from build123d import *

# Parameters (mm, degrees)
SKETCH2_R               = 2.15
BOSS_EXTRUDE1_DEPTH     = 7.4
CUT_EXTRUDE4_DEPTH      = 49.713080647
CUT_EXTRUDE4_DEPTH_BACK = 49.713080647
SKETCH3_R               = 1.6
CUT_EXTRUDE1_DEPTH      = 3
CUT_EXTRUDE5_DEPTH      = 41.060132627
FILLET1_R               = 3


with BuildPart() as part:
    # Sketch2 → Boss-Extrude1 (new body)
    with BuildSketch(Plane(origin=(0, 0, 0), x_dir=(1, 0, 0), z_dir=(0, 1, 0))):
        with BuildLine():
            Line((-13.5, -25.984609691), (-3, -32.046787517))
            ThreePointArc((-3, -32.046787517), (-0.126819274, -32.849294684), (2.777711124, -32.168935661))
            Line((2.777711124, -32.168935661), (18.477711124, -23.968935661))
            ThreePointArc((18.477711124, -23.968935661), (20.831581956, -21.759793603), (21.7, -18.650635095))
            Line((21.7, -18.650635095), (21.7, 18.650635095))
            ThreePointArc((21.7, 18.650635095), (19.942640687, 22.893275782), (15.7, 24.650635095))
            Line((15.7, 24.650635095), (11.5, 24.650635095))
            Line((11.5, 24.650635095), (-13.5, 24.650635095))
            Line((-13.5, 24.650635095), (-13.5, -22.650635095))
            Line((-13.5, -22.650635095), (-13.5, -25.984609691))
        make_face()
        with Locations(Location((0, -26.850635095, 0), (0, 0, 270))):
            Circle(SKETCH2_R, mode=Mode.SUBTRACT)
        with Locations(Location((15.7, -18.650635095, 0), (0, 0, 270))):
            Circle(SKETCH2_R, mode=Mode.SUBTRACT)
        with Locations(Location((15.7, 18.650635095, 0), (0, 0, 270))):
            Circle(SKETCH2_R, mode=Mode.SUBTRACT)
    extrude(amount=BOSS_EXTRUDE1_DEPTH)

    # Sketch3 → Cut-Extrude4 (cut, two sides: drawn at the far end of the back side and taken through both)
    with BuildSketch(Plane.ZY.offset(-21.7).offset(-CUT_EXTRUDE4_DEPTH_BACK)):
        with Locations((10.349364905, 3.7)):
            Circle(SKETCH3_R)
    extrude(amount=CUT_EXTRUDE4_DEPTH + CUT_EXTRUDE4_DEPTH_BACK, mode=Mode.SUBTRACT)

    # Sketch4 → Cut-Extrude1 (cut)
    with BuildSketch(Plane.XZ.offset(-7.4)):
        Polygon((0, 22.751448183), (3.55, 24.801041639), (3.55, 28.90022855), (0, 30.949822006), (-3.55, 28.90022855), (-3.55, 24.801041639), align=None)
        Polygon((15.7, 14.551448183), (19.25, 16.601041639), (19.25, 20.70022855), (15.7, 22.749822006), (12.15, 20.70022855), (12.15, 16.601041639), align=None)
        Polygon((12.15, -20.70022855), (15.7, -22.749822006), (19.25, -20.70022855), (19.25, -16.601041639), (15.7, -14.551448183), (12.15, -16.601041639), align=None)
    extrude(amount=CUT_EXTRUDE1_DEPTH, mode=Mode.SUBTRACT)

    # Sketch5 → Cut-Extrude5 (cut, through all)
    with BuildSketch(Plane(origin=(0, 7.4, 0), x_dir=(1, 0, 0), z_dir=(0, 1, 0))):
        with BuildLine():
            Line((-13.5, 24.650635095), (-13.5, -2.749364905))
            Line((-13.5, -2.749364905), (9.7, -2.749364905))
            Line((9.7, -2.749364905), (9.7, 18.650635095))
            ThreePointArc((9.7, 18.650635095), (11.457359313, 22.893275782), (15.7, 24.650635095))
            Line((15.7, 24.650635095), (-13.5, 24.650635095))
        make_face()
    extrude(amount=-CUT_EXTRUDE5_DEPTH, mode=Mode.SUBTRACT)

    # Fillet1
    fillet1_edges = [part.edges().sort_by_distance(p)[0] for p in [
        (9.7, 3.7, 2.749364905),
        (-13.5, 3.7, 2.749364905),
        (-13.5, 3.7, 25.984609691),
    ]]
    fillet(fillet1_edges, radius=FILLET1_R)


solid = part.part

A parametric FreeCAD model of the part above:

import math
import FreeCAD as App
import Part
import Sketcher
Q = App.Units.Quantity


def edges_at(feature, points):
    """Names of the edges that pass closest to the given points."""
    edges = feature.Shape.Edges
    near = lambda p: min(range(len(edges)), key=lambda i: edges[i].distToShape(Part.Vertex(*p))[0])
    return sorted({f"Edge{near(p) + 1}" for p in points})

doc = App.newDocument("Part")
params = doc.addObject("Spreadsheet::Sheet", "Params")
for row, (alias, value) in enumerate([
    ("sketch1_radius", "6 mm"),
    ("sketch1_diameter", "4.3 mm"),
    ("sketch1_width", "29.2 mm"),
    ("pad1_length", "7.4 mm"),
    ("sketch2_diameter", "3.2 mm"),
    ("pocket2_length", "3 mm"),
    ("sketch4_radius", "6 mm"),
    ("sketch4_width", "23.2 mm"),
    ("sketch4_height", "27.4 mm"),
    ("fillet_radius", "3 mm"),
], start=1):
    params.set(f"A{row}", alias)
    params.set(f"B{row}", "=" + value)
    params.setAlias(f"B{row}", alias)

body = doc.addObject("PartDesign::Body", "Body")

# Sketch on XZ plane
sketch1 = doc.addObject("Sketcher::SketchObject", "Sketch")
body.addObject(sketch1)
sketch1.AttachmentSupport = (doc.XZ_Plane, [""])
sketch1.MapMode = "FlatFace"
sketch1.addGeometry(Part.LineSegment(App.Vector(-13.5, 26, 0), App.Vector(-3, 32, 0)), False)
sketch1.addGeometry(Part.ArcOfCircle(Part.Circle(App.Vector(0, 26.9, 0), App.Vector(0, 0, 1), 6), math.radians(62), math.radians(120)), False)
sketch1.addGeometry(Part.LineSegment(App.Vector(2.8, 32.2, 0), App.Vector(18.5, 24, 0)), False)
sketch1.addGeometry(Part.ArcOfCircle(Part.Circle(App.Vector(15.7, 18.7, 0), App.Vector(0, 0, 1), 6), math.radians(0), math.radians(62)), False)
sketch1.addGeometry(Part.LineSegment(App.Vector(21.7, 18.7, 0), App.Vector(21.7, -18.7, 0)), False)
sketch1.addGeometry(Part.ArcOfCircle(Part.Circle(App.Vector(15.7, -18.7, 0), App.Vector(0, 0, 1), 6), math.radians(-90), math.radians(0)), False)
sketch1.addGeometry(Part.LineSegment(App.Vector(15.7, -24.7, 0), App.Vector(-13.5, -24.7, 0)), False)
sketch1.addGeometry(Part.LineSegment(App.Vector(-13.5, -24.7, 0), App.Vector(-13.5, 26, 0)), False)
sketch1.addGeometry(Part.Circle(App.Vector(0, 26.9, 0), App.Vector(0, 0, 1), 2.1), False)
sketch1.addGeometry(Part.Circle(App.Vector(15.7, 18.7, 0), App.Vector(0, 0, 1), 2.1), False)
sketch1.addGeometry(Part.Circle(App.Vector(15.7, -18.7, 0), App.Vector(0, 0, 1), 2.1), False)
sketch1.addConstraint(Sketcher.Constraint("Tangent", 0, 2, 1, 2))
sketch1.addConstraint(Sketcher.Constraint("Tangent", 1, 1, 2, 1))
sketch1.addConstraint(Sketcher.Constraint("Tangent", 2, 2, 3, 2))
sketch1.addConstraint(Sketcher.Constraint("Tangent", 3, 1, 4, 1))
sketch1.addConstraint(Sketcher.Constraint("Tangent", 4, 2, 5, 2))
sketch1.addConstraint(Sketcher.Constraint("Tangent", 5, 1, 6, 1))
sketch1.addConstraint(Sketcher.Constraint("Coincident", 6, 2, 7, 1))
sketch1.addConstraint(Sketcher.Constraint("Coincident", 7, 2, 0, 1))
sketch1.addConstraint(Sketcher.Constraint("Vertical", 4))
sketch1.addConstraint(Sketcher.Constraint("Horizontal", 6))
sketch1.addConstraint(Sketcher.Constraint("Vertical", 7))
sketch1.addConstraint(Sketcher.Constraint("Coincident", 8, 3, 1, 3))
sketch1.addConstraint(Sketcher.Constraint("Coincident", 9, 3, 3, 3))
sketch1.addConstraint(Sketcher.Constraint("Coincident", 10, 3, 5, 3))
sketch1.addConstraint(Sketcher.Constraint("Equal", 1, 3))
sketch1.addConstraint(Sketcher.Constraint("Equal", 3, 5))
sketch1.addConstraint(Sketcher.Constraint("Equal", 8, 9))
sketch1.addConstraint(Sketcher.Constraint("Equal", 9, 10))
sketch1.addConstraint(Sketcher.Constraint("PointOnObject", 1, 3, -2))
sketch1.addConstraint(Sketcher.Constraint("Radius", 1, Q("6 mm")))
sketch1.addConstraint(Sketcher.Constraint("Diameter", 8, Q("4.3 mm")))
sketch1.addConstraint(Sketcher.Constraint("Angle", 0, Q("30 deg")))
sketch1.addConstraint(Sketcher.Constraint("DistanceX", 6, 2, 6, 1, Q("29.2 mm")))
sketch1.addConstraint(Sketcher.Constraint("DistanceX", -1, 1, 3, 3, Q("15.7 mm")))
sketch1.addConstraint(Sketcher.Constraint("DistanceY", 3, 3, 1, 3, Q("8.2 mm")))
sketch1.addConstraint(Sketcher.Constraint("DistanceY", 4, 2, 4, 1, Q("37.30127 mm")))
sketch1.addConstraint(Sketcher.Constraint("DistanceY", -1, 1, 7, 2, Q("25.98461 mm")))
sketch1.setExpression("Constraints[19]", "Params.sketch1_radius")
sketch1.setExpression("Constraints[20]", "Params.sketch1_diameter")
sketch1.setExpression("Constraints[22]", "Params.sketch1_width")
pad1 = doc.addObject("PartDesign::Pad", "Pad")
body.addObject(pad1)
pad1.Profile = sketch1
pad1.setExpression("Length", "Params.pad1_length")
pad1.Reversed = True

# Sketch on YZ plane
sketch2 = doc.addObject("Sketcher::SketchObject", "Sketch001")
body.addObject(sketch2)
sketch2.AttachmentSupport = (doc.YZ_Plane, [""])
sketch2.MapMode = "FlatFace"
sketch2.AttachmentOffset = App.Placement(App.Vector(0, 0, 21.7), App.Rotation())
sketch2.addGeometry(Part.Circle(App.Vector(3.7, 10.3, 0), App.Vector(0, 0, 1), 1.6), False)
sketch2.addConstraint(Sketcher.Constraint("Diameter", 0, Q("3.2 mm")))
sketch2.addConstraint(Sketcher.Constraint("DistanceX", -1, 1, 0, 3, Q("3.7 mm")))
sketch2.addConstraint(Sketcher.Constraint("DistanceY", -1, 1, 0, 3, Q("10.349365 mm")))
sketch2.setExpression("Constraints[0]", "Params.sketch2_diameter")
pocket1 = doc.addObject("PartDesign::Pocket", "Pocket")
body.addObject(pocket1)
pocket1.Profile = sketch2
pocket1.Type = "ThroughAll"
pocket1.Midplane = True

# Sketch on XZ plane
sketch3 = doc.addObject("Sketcher::SketchObject", "Sketch002")
body.addObject(sketch3)
sketch3.AttachmentSupport = (doc.XZ_Plane, [""])
sketch3.MapMode = "FlatFace"
sketch3.AttachmentOffset = App.Placement(App.Vector(0, 0, -7.4), App.Rotation())
sketch3.addGeometry(Part.LineSegment(App.Vector(0, 22.8, 0), App.Vector(3.5, 24.8, 0)), False)
sketch3.addGeometry(Part.LineSegment(App.Vector(3.5, 24.8, 0), App.Vector(3.5, 28.9, 0)), False)
sketch3.addGeometry(Part.LineSegment(App.Vector(3.5, 28.9, 0), App.Vector(0, 30.9, 0)), False)
sketch3.addGeometry(Part.LineSegment(App.Vector(0, 30.9, 0), App.Vector(-3.5, 28.9, 0)), False)
sketch3.addGeometry(Part.LineSegment(App.Vector(-3.5, 28.9, 0), App.Vector(-3.5, 24.8, 0)), False)
sketch3.addGeometry(Part.LineSegment(App.Vector(-3.5, 24.8, 0), App.Vector(0, 22.8, 0)), False)
sketch3.addGeometry(Part.LineSegment(App.Vector(15.7, 14.6, 0), App.Vector(19.2, 16.6, 0)), False)
sketch3.addGeometry(Part.LineSegment(App.Vector(19.2, 16.6, 0), App.Vector(19.2, 20.7, 0)), False)
sketch3.addGeometry(Part.LineSegment(App.Vector(19.2, 20.7, 0), App.Vector(15.7, 22.7, 0)), False)
sketch3.addGeometry(Part.LineSegment(App.Vector(15.7, 22.7, 0), App.Vector(12.2, 20.7, 0)), False)
sketch3.addGeometry(Part.LineSegment(App.Vector(12.2, 20.7, 0), App.Vector(12.2, 16.6, 0)), False)
sketch3.addGeometry(Part.LineSegment(App.Vector(12.2, 16.6, 0), App.Vector(15.7, 14.6, 0)), False)
sketch3.addGeometry(Part.LineSegment(App.Vector(12.2, -20.7, 0), App.Vector(15.7, -22.7, 0)), False)
sketch3.addGeometry(Part.LineSegment(App.Vector(15.7, -22.7, 0), App.Vector(19.2, -20.7, 0)), False)
sketch3.addGeometry(Part.LineSegment(App.Vector(19.2, -20.7, 0), App.Vector(19.2, -16.6, 0)), False)
sketch3.addGeometry(Part.LineSegment(App.Vector(19.2, -16.6, 0), App.Vector(15.7, -14.6, 0)), False)
sketch3.addGeometry(Part.LineSegment(App.Vector(15.7, -14.6, 0), App.Vector(12.2, -16.6, 0)), False)
sketch3.addGeometry(Part.LineSegment(App.Vector(12.2, -16.6, 0), App.Vector(12.2, -20.7, 0)), False)
sketch3.addConstraint(Sketcher.Constraint("Coincident", 0, 2, 1, 1))
sketch3.addConstraint(Sketcher.Constraint("Coincident", 1, 2, 2, 1))
sketch3.addConstraint(Sketcher.Constraint("Coincident", 2, 2, 3, 1))
sketch3.addConstraint(Sketcher.Constraint("Coincident", 3, 2, 4, 1))
sketch3.addConstraint(Sketcher.Constraint("Coincident", 4, 2, 5, 1))
sketch3.addConstraint(Sketcher.Constraint("Coincident", 5, 2, 0, 1))
sketch3.addConstraint(Sketcher.Constraint("Coincident", 6, 2, 7, 1))
sketch3.addConstraint(Sketcher.Constraint("Coincident", 7, 2, 8, 1))
sketch3.addConstraint(Sketcher.Constraint("Coincident", 8, 2, 9, 1))
sketch3.addConstraint(Sketcher.Constraint("Coincident", 9, 2, 10, 1))
sketch3.addConstraint(Sketcher.Constraint("Coincident", 10, 2, 11, 1))
sketch3.addConstraint(Sketcher.Constraint("Coincident", 11, 2, 6, 1))
sketch3.addConstraint(Sketcher.Constraint("Coincident", 12, 2, 13, 1))
sketch3.addConstraint(Sketcher.Constraint("Coincident", 13, 2, 14, 1))
sketch3.addConstraint(Sketcher.Constraint("Coincident", 14, 2, 15, 1))
sketch3.addConstraint(Sketcher.Constraint("Coincident", 15, 2, 16, 1))
sketch3.addConstraint(Sketcher.Constraint("Coincident", 16, 2, 17, 1))
sketch3.addConstraint(Sketcher.Constraint("Coincident", 17, 2, 12, 1))
sketch3.addConstraint(Sketcher.Constraint("Vertical", 1))
sketch3.addConstraint(Sketcher.Constraint("Vertical", 4))
sketch3.addConstraint(Sketcher.Constraint("Vertical", 7))
sketch3.addConstraint(Sketcher.Constraint("Vertical", 10))
sketch3.addConstraint(Sketcher.Constraint("Vertical", 14))
sketch3.addConstraint(Sketcher.Constraint("Vertical", 17))
sketch3.addConstraint(Sketcher.Constraint("Symmetric", 1, 2, 3, 2, -2))
sketch3.addConstraint(Sketcher.Constraint("Symmetric", 8, 2, 12, 2, -1))
sketch3.addConstraint(Sketcher.Constraint("Symmetric", 7, 2, 13, 2, -1))
sketch3.addConstraint(Sketcher.Constraint("Symmetric", 11, 2, 15, 2, -1))
sketch3.addConstraint(Sketcher.Constraint("Symmetric", 10, 2, 16, 2, -1))
sketch3.addConstraint(Sketcher.Constraint("PointOnObject", 2, 2, -2))
sketch3.addConstraint(Sketcher.Constraint("PointOnObject", 5, 2, -2))
sketch3.addConstraint(Sketcher.Constraint("Parallel", 0, 3))
sketch3.addConstraint(Sketcher.Constraint("Parallel", 2, 5))
sketch3.addConstraint(Sketcher.Constraint("Parallel", 3, 6))
sketch3.addConstraint(Sketcher.Constraint("Parallel", 5, 8))
sketch3.addConstraint(Sketcher.Constraint("Parallel", 6, 9))
sketch3.addConstraint(Sketcher.Constraint("Parallel", 8, 11))
sketch3.addConstraint(Sketcher.Constraint("Parallel", 11, 12))
sketch3.addConstraint(Sketcher.Constraint("Parallel", 12, 15))
sketch3.addConstraint(Sketcher.Constraint("Horizontal", 7, 2, 9, 2))
sketch3.addConstraint(Sketcher.Constraint("Horizontal", 6, 2, 10, 2))
sketch3.addConstraint(Sketcher.Constraint("Equal", 4, 7))
sketch3.addConstraint(Sketcher.Constraint("Equal", 5, 6))
sketch3.addConstraint(Sketcher.Constraint("Angle", 0, Q("30 deg")))
sketch3.addConstraint(Sketcher.Constraint("DistanceX", -1, 1, 8, 2, Q("15.7 mm")))
sketch3.addConstraint(Sketcher.Constraint("DistanceX", 3, 2, 1, 2, Q("7.1 mm")))
sketch3.addConstraint(Sketcher.Constraint("DistanceY", 6, 2, 0, 2, Q("8.2 mm")))
sketch3.addConstraint(Sketcher.Constraint("DistanceY", 1, 1, 1, 2, Q("4.099187 mm")))
sketch3.addConstraint(Sketcher.Constraint("DistanceY", -1, 1, 0, 2, Q("24.801042 mm")))
pocket2 = doc.addObject("PartDesign::Pocket", "Pocket001")
body.addObject(pocket2)
pocket2.Profile = sketch3
pocket2.setExpression("Length", "Params.pocket2_length")
pocket2.Reversed = True

# Sketch on XZ plane
sketch4 = doc.addObject("Sketcher::SketchObject", "Sketch003")
body.addObject(sketch4)
sketch4.AttachmentSupport = (doc.XZ_Plane, [""])
sketch4.MapMode = "FlatFace"
sketch4.AttachmentOffset = App.Placement(App.Vector(0, 0, -7.4), App.Rotation())
sketch4.addGeometry(Part.LineSegment(App.Vector(-14, -25, 0), App.Vector(-14, 3, 0)), False)
sketch4.addGeometry(Part.LineSegment(App.Vector(-14, 3, 0), App.Vector(10, 3, 0)), False)
sketch4.addGeometry(Part.LineSegment(App.Vector(10, 3, 0), App.Vector(10, -19, 0)), False)
sketch4.addGeometry(Part.ArcOfCircle(Part.Circle(App.Vector(16, -19, 0), App.Vector(0, 0, 1), 6), math.radians(180), math.radians(270)), False)
sketch4.addGeometry(Part.LineSegment(App.Vector(16, -25, 0), App.Vector(-14, -25, 0)), False)
sketch4.addConstraint(Sketcher.Constraint("Coincident", 0, 2, 1, 1))
sketch4.addConstraint(Sketcher.Constraint("Coincident", 1, 2, 2, 1))
sketch4.addConstraint(Sketcher.Constraint("Tangent", 2, 2, 3, 1))
sketch4.addConstraint(Sketcher.Constraint("Tangent", 3, 2, 4, 1))
sketch4.addConstraint(Sketcher.Constraint("Coincident", 4, 2, 0, 1))
sketch4.addConstraint(Sketcher.Constraint("Vertical", 0))
sketch4.addConstraint(Sketcher.Constraint("Horizontal", 1))
sketch4.addConstraint(Sketcher.Constraint("Vertical", 2))
sketch4.addConstraint(Sketcher.Constraint("Horizontal", 4))
sketch4.addConstraint(Sketcher.Constraint("Radius", 3, Q("6 mm")))
sketch4.addConstraint(Sketcher.Constraint("DistanceX", 1, 1, 1, 2, Q("23.2 mm")))
sketch4.addConstraint(Sketcher.Constraint("DistanceY", 0, 1, 0, 2, Q("27.4 mm")))
sketch4.addConstraint(Sketcher.Constraint("DistanceX", -1, 1, 3, 3, Q("15.7 mm")))
sketch4.addConstraint(Sketcher.Constraint("DistanceY", 3, 3, -1, 1, Q("18.650635 mm")))
sketch4.setExpression("Constraints[9]", "Params.sketch4_radius")
sketch4.setExpression("Constraints[10]", "Params.sketch4_width")
sketch4.setExpression("Constraints[11]", "Params.sketch4_height")
pocket3 = doc.addObject("PartDesign::Pocket", "Pocket002")
body.addObject(pocket3)
pocket3.Profile = sketch4
pocket3.Type = "ThroughAll"
pocket3.Reversed = True
doc.recompute()

fillet = doc.addObject("PartDesign::Fillet", "Fillet")
body.addObject(fillet)
fillet.Base = (pocket3, edges_at(pocket3, [(9.7, 3.7, 2.749), (-13.5, 3.7, 2.749), (-13.5, 3.7, 25.985)]))
fillet.setExpression("Radius", "Params.fillet_radius")

doc.recompute()
